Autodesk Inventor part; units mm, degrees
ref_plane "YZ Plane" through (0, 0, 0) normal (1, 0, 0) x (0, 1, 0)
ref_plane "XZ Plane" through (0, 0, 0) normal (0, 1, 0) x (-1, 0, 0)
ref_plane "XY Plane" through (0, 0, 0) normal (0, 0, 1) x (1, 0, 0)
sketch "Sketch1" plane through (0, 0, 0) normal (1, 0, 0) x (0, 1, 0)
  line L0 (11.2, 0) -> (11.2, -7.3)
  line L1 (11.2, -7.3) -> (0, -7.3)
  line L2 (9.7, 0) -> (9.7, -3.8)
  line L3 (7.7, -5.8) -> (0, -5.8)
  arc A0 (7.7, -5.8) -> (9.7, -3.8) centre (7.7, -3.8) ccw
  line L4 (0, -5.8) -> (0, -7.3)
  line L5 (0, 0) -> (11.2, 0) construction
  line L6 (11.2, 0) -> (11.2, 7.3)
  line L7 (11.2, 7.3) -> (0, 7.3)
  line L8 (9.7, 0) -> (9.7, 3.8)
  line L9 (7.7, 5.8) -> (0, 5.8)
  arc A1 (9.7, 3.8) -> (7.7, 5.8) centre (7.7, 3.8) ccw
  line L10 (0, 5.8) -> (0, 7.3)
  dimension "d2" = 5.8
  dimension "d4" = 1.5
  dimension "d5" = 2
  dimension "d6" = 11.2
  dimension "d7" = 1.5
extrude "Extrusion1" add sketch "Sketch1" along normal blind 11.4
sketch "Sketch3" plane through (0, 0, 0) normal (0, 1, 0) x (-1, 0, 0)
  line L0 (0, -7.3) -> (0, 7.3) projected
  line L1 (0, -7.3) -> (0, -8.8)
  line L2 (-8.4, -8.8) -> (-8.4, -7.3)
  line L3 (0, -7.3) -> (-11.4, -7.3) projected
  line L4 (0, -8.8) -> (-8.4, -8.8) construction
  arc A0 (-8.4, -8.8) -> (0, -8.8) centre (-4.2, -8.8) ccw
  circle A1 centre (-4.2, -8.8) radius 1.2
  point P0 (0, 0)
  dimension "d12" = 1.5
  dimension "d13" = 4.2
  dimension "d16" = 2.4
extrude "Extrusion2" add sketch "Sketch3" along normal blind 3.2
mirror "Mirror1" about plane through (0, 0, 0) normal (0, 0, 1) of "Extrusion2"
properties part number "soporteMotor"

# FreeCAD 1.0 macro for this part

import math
import FreeCAD as App
import Part
import Sketcher
from FreeCAD import Vector

doc = App.newDocument("Part")
params = doc.addObject("Spreadsheet::Sheet", "Params")
for row, (alias, value) in enumerate([
    ("sketch1_radius", "2 mm"),
    ("sketch1_width", "11.2 mm"),
    ("sketch1_height", "1.5 mm"),
    ("pad1_length", "11.4 mm"),
    ("sketch2_diameter", "2.4 mm"),
    ("sketch2_radius", "4.2 mm"),
    ("sketch2_height", "1.5 mm"),
    ("pad2_length", "3.2 mm"),
], start=1):
    params.set(f"A{row}", alias)
    params.set(f"B{row}", "=" + value)
    params.setAlias(f"B{row}", alias)

body = doc.addObject("PartDesign::Body", "Body")

sketch1 = body.newObject("Sketcher::SketchObject", "Sketch")
sketch1.AttachmentSupport = (doc.getObject("YZ_Plane"), [""])
sketch1.MapMode = "FlatFace"
sketch1.addGeometry([
    Part.LineSegment(Vector(11.2, -7.3, 0), Vector(11.2, 7.3, 0)),
    Part.LineSegment(Vector(11.2, 7.3, 0), Vector(0, 7.3, 0)),
    Part.LineSegment(Vector(0, 7.3, 0), Vector(0, 5.8, 0)),
    Part.LineSegment(Vector(0, 5.8, 0), Vector(7.7, 5.8, 0)),
    Part.ArcOfCircle(Part.Circle(Vector(7.7, 3.8, 0), Vector(0, 0, 1), 2), math.radians(0), math.radians(90)),
    Part.LineSegment(Vector(9.7, 3.8, 0), Vector(9.7, -3.8, 0)),
    Part.ArcOfCircle(Part.Circle(Vector(7.7, -3.8, 0), Vector(0, 0, 1), 2), math.radians(-90), math.radians(0)),
    Part.LineSegment(Vector(7.7, -5.8, 0), Vector(0, -5.8, 0)),
    Part.LineSegment(Vector(0, -5.8, 0), Vector(0, -7.3, 0)),
    Part.LineSegment(Vector(0, -7.3, 0), Vector(11.2, -7.3, 0)),
], False)
sketch1.addConstraint([
    Sketcher.Constraint("Coincident", 0, 2, 1, 1),
    Sketcher.Constraint("Coincident", 1, 2, 2, 1),
    Sketcher.Constraint("Coincident", 2, 2, 3, 1),
    Sketcher.Constraint("Tangent", 3, 2, 4, 2),
    Sketcher.Constraint("Tangent", 4, 1, 5, 1),
    Sketcher.Constraint("Tangent", 5, 2, 6, 2),
    Sketcher.Constraint("Tangent", 6, 1, 7, 1),
    Sketcher.Constraint("Coincident", 7, 2, 8, 1),
    Sketcher.Constraint("Coincident", 8, 2, 9, 1),
    Sketcher.Constraint("Coincident", 9, 2, 0, 1),
    Sketcher.Constraint("Vertical", 0),
    Sketcher.Constraint("Horizontal", 1),
    Sketcher.Constraint("Vertical", 2),
    Sketcher.Constraint("Horizontal", 3),
    Sketcher.Constraint("Vertical", 5),
    Sketcher.Constraint("Horizontal", 7),
    Sketcher.Constraint("Vertical", 8),
    Sketcher.Constraint("Horizontal", 9),
    Sketcher.Constraint("Equal", 4, 6),
    Sketcher.Constraint("Symmetric", 2, 2, 7, 2, -1, 1),
    Sketcher.Constraint("Symmetric", 1, 2, 8, 2, -1),
    Sketcher.Constraint("Radius", 4, 2.0),
    Sketcher.Constraint("DistanceX", 1, 2, 1, 1, 11.2),
    Sketcher.Constraint("DistanceY", 2, 2, 2, 1, 1.5),
    Sketcher.Constraint("DistanceY", -1, 1, 2, 2, 5.8),
    Sketcher.Constraint("DistanceX", 4, 1, 0, 2, 1.5),
])
sketch1.setExpression("Constraints[21]", "Params.sketch1_radius")
sketch1.setExpression("Constraints[22]", "Params.sketch1_width")
sketch1.setExpression("Constraints[23]", "Params.sketch1_height")
pad1 = body.newObject("PartDesign::Pad", "Pad")
pad1.Profile = sketch1
pad1.setExpression("Length", "Params.pad1_length")

sketch2 = body.newObject("Sketcher::SketchObject", "Sketch001")
sketch2.AttachmentSupport = (doc.getObject("XZ_Plane"), [""])
sketch2.MapMode = "FlatFace"
sketch2.addGeometry([
    Part.LineSegment(Vector(0, -8.8, 0), Vector(0, -7.3, 0)),
    Part.LineSegment(Vector(0, -7.3, 0), Vector(8.4, -7.3, 0)),
    Part.LineSegment(Vector(8.4, -7.3, 0), Vector(8.4, -8.8, 0)),
    Part.ArcOfCircle(Part.Circle(Vector(4.2, -8.8, 0), Vector(0, 0, 1), 4.2), math.radians(180), math.radians(360)),
    Part.Circle(Vector(4.2, -8.8, 0), Vector(0, 0, 1), 1.2),
], False)
sketch2.addConstraint([
    Sketcher.Constraint("Coincident", 0, 2, 1, 1),
    Sketcher.Constraint("Coincident", 1, 2, 2, 1),
    Sketcher.Constraint("Tangent", 2, 2, 3, 2),
    Sketcher.Constraint("Tangent", 3, 1, 0, 1),
    Sketcher.Constraint("Vertical", 0),
    Sketcher.Constraint("Horizontal", 1),
    Sketcher.Constraint("Vertical", 2),
    Sketcher.Constraint("Coincident", 4, 3, 3, 3),
    Sketcher.Constraint("PointOnObject", 0, 2, -2),
    Sketcher.Constraint("Diameter", 4, 2.4),
    Sketcher.Constraint("Radius", 3, 4.2),
    Sketcher.Constraint("DistanceY", 0, 1, 0, 2, 1.5),
    Sketcher.Constraint("DistanceY", 3, 3, -1, 1, 8.8),
])
sketch2.setExpression("Constraints[9]", "Params.sketch2_diameter")
sketch2.setExpression("Constraints[10]", "Params.sketch2_radius")
sketch2.setExpression("Constraints[11]", "Params.sketch2_height")
pad2 = body.newObject("PartDesign::Pad", "Pad001")
pad2.Profile = sketch2
pad2.setExpression("Length", "Params.pad2_length")
pad2.Reversed = True
doc.recompute()

mirrored = body.newObject("PartDesign::Mirrored", "Mirrored")
mirrored.Originals = [pad2]
mirrored.MirrorPlane = (doc.getObject("XY_Plane"), [""])
body.Tip = mirrored

doc.recompute()
